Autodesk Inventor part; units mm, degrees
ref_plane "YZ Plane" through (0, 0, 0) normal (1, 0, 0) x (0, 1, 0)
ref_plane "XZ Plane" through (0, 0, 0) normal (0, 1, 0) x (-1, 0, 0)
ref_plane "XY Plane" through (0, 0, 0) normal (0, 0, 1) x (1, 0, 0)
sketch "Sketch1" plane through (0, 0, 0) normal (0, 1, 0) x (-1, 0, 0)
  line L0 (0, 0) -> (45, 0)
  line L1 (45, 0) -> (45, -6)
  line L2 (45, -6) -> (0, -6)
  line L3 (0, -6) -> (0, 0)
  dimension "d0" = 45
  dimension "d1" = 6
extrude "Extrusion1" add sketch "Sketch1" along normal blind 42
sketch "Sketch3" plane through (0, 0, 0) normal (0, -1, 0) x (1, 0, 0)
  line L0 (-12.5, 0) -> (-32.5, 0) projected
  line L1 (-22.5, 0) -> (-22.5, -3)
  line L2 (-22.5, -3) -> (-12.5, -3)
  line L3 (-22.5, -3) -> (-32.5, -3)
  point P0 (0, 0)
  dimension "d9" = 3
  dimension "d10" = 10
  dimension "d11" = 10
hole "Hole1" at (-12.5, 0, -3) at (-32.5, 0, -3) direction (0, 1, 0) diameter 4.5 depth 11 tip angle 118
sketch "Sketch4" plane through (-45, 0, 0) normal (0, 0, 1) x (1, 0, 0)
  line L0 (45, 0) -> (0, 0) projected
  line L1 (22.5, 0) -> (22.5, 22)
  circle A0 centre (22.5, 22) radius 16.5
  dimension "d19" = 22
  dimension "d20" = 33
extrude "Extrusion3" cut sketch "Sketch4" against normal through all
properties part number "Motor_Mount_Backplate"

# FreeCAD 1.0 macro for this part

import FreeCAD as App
import Part
import Sketcher
Q = App.Units.Quantity


def add_polygon(sketch, points):
    """Adds a closed chain of lines whose ends are joined by coincident constraints."""
    first, n = sketch.GeometryCount, len(points)
    for a, b in zip(points, points[1:] + points[:1]):
        sketch.addGeometry(Part.LineSegment(App.Vector(*a, 0), App.Vector(*b, 0)), False)
    for i in range(n):
        sketch.addConstraint(Sketcher.Constraint("Coincident", first + i, 2, first + (i + 1) % n, 1))

doc = App.newDocument("Part")
body = doc.addObject("PartDesign::Body", "Body")

# Sketch on XZ plane
sketch1 = body.newObject("Sketcher::SketchObject", "Sketch")
sketch1.AttachmentSupport = (doc.getObject("XZ_Plane"), [""])
sketch1.MapMode = "FlatFace"
add_polygon(sketch1, [(-45, 0), (0, 0), (0, -6), (-45, -6)])  # lines 0-3
sketch1.addConstraint([
    Sketcher.Constraint("Horizontal", 0),
    Sketcher.Constraint("Vertical", 1),
    Sketcher.Constraint("Horizontal", 2),
    Sketcher.Constraint("Vertical", 3),
    Sketcher.Constraint("Coincident", 0, 2, -1, 1),
    Sketcher.Constraint("DistanceX", 0, 1, 0, 2, Q("45 mm")),
    Sketcher.Constraint("DistanceY", 1, 2, 1, 1, Q("6 mm")),
])
pad1 = body.newObject("PartDesign::Pad", "Pad")
pad1.Profile = sketch1
pad1.Length = 42
pad1.Reversed = True

# Sketch on XZ plane
sketch2 = body.newObject("Sketcher::SketchObject", "Sketch001")
sketch2.AttachmentSupport = (doc.getObject("XZ_Plane"), [""])
sketch2.MapMode = "FlatFace"
sketch2.addGeometry([
    Part.Circle(App.Vector(-12.5, -3, 0), App.Vector(0, 0, 1), 2.2),
    Part.Circle(App.Vector(-32.5, -3, 0), App.Vector(0, 0, 1), 2.2),
], False)
sketch2.addConstraint([
    Sketcher.Constraint("Equal", 0, 1),
    Sketcher.Constraint("Horizontal", 0, 3, 1, 3),
    Sketcher.Constraint("Diameter", 0, Q("4.5 mm")),
    Sketcher.Constraint("DistanceY", 0, 3, -1, 1, Q("3 mm")),
    Sketcher.Constraint("DistanceX", 1, 3, 0, 3, Q("20 mm")),
    Sketcher.Constraint("DistanceX", 0, 3, -1, 1, Q("12.5 mm")),
])
doc.recompute()
hole = body.newObject("PartDesign::Hole", "Hole")
hole.Profile = sketch2
hole.ThreadType = "None"
hole.Diameter = 4.5
hole.DepthType = "Dimension"
hole.Depth = 11
hole.DrillPoint = "Angled"
hole.DrillPointAngle = 118

# Sketch on XY plane
sketch3 = body.newObject("Sketcher::SketchObject", "Sketch002")
sketch3.AttachmentSupport = (doc.getObject("XY_Plane"), [""])
sketch3.MapMode = "FlatFace"
sketch3.addGeometry(Part.Circle(App.Vector(-22, 22, 0), App.Vector(0, 0, 1), 16), False)
sketch3.addConstraint([
    Sketcher.Constraint("Diameter", 0, Q("33 mm")),
    Sketcher.Constraint("DistanceY", -1, 1, 0, 3, Q("22 mm")),
    Sketcher.Constraint("DistanceX", 0, 3, -1, 1, Q("22.5 mm")),
])
pocket1 = body.newObject("PartDesign::Pocket", "Pocket")
pocket1.Profile = sketch3
pocket1.Type = "ThroughAll"

doc.recompute()
